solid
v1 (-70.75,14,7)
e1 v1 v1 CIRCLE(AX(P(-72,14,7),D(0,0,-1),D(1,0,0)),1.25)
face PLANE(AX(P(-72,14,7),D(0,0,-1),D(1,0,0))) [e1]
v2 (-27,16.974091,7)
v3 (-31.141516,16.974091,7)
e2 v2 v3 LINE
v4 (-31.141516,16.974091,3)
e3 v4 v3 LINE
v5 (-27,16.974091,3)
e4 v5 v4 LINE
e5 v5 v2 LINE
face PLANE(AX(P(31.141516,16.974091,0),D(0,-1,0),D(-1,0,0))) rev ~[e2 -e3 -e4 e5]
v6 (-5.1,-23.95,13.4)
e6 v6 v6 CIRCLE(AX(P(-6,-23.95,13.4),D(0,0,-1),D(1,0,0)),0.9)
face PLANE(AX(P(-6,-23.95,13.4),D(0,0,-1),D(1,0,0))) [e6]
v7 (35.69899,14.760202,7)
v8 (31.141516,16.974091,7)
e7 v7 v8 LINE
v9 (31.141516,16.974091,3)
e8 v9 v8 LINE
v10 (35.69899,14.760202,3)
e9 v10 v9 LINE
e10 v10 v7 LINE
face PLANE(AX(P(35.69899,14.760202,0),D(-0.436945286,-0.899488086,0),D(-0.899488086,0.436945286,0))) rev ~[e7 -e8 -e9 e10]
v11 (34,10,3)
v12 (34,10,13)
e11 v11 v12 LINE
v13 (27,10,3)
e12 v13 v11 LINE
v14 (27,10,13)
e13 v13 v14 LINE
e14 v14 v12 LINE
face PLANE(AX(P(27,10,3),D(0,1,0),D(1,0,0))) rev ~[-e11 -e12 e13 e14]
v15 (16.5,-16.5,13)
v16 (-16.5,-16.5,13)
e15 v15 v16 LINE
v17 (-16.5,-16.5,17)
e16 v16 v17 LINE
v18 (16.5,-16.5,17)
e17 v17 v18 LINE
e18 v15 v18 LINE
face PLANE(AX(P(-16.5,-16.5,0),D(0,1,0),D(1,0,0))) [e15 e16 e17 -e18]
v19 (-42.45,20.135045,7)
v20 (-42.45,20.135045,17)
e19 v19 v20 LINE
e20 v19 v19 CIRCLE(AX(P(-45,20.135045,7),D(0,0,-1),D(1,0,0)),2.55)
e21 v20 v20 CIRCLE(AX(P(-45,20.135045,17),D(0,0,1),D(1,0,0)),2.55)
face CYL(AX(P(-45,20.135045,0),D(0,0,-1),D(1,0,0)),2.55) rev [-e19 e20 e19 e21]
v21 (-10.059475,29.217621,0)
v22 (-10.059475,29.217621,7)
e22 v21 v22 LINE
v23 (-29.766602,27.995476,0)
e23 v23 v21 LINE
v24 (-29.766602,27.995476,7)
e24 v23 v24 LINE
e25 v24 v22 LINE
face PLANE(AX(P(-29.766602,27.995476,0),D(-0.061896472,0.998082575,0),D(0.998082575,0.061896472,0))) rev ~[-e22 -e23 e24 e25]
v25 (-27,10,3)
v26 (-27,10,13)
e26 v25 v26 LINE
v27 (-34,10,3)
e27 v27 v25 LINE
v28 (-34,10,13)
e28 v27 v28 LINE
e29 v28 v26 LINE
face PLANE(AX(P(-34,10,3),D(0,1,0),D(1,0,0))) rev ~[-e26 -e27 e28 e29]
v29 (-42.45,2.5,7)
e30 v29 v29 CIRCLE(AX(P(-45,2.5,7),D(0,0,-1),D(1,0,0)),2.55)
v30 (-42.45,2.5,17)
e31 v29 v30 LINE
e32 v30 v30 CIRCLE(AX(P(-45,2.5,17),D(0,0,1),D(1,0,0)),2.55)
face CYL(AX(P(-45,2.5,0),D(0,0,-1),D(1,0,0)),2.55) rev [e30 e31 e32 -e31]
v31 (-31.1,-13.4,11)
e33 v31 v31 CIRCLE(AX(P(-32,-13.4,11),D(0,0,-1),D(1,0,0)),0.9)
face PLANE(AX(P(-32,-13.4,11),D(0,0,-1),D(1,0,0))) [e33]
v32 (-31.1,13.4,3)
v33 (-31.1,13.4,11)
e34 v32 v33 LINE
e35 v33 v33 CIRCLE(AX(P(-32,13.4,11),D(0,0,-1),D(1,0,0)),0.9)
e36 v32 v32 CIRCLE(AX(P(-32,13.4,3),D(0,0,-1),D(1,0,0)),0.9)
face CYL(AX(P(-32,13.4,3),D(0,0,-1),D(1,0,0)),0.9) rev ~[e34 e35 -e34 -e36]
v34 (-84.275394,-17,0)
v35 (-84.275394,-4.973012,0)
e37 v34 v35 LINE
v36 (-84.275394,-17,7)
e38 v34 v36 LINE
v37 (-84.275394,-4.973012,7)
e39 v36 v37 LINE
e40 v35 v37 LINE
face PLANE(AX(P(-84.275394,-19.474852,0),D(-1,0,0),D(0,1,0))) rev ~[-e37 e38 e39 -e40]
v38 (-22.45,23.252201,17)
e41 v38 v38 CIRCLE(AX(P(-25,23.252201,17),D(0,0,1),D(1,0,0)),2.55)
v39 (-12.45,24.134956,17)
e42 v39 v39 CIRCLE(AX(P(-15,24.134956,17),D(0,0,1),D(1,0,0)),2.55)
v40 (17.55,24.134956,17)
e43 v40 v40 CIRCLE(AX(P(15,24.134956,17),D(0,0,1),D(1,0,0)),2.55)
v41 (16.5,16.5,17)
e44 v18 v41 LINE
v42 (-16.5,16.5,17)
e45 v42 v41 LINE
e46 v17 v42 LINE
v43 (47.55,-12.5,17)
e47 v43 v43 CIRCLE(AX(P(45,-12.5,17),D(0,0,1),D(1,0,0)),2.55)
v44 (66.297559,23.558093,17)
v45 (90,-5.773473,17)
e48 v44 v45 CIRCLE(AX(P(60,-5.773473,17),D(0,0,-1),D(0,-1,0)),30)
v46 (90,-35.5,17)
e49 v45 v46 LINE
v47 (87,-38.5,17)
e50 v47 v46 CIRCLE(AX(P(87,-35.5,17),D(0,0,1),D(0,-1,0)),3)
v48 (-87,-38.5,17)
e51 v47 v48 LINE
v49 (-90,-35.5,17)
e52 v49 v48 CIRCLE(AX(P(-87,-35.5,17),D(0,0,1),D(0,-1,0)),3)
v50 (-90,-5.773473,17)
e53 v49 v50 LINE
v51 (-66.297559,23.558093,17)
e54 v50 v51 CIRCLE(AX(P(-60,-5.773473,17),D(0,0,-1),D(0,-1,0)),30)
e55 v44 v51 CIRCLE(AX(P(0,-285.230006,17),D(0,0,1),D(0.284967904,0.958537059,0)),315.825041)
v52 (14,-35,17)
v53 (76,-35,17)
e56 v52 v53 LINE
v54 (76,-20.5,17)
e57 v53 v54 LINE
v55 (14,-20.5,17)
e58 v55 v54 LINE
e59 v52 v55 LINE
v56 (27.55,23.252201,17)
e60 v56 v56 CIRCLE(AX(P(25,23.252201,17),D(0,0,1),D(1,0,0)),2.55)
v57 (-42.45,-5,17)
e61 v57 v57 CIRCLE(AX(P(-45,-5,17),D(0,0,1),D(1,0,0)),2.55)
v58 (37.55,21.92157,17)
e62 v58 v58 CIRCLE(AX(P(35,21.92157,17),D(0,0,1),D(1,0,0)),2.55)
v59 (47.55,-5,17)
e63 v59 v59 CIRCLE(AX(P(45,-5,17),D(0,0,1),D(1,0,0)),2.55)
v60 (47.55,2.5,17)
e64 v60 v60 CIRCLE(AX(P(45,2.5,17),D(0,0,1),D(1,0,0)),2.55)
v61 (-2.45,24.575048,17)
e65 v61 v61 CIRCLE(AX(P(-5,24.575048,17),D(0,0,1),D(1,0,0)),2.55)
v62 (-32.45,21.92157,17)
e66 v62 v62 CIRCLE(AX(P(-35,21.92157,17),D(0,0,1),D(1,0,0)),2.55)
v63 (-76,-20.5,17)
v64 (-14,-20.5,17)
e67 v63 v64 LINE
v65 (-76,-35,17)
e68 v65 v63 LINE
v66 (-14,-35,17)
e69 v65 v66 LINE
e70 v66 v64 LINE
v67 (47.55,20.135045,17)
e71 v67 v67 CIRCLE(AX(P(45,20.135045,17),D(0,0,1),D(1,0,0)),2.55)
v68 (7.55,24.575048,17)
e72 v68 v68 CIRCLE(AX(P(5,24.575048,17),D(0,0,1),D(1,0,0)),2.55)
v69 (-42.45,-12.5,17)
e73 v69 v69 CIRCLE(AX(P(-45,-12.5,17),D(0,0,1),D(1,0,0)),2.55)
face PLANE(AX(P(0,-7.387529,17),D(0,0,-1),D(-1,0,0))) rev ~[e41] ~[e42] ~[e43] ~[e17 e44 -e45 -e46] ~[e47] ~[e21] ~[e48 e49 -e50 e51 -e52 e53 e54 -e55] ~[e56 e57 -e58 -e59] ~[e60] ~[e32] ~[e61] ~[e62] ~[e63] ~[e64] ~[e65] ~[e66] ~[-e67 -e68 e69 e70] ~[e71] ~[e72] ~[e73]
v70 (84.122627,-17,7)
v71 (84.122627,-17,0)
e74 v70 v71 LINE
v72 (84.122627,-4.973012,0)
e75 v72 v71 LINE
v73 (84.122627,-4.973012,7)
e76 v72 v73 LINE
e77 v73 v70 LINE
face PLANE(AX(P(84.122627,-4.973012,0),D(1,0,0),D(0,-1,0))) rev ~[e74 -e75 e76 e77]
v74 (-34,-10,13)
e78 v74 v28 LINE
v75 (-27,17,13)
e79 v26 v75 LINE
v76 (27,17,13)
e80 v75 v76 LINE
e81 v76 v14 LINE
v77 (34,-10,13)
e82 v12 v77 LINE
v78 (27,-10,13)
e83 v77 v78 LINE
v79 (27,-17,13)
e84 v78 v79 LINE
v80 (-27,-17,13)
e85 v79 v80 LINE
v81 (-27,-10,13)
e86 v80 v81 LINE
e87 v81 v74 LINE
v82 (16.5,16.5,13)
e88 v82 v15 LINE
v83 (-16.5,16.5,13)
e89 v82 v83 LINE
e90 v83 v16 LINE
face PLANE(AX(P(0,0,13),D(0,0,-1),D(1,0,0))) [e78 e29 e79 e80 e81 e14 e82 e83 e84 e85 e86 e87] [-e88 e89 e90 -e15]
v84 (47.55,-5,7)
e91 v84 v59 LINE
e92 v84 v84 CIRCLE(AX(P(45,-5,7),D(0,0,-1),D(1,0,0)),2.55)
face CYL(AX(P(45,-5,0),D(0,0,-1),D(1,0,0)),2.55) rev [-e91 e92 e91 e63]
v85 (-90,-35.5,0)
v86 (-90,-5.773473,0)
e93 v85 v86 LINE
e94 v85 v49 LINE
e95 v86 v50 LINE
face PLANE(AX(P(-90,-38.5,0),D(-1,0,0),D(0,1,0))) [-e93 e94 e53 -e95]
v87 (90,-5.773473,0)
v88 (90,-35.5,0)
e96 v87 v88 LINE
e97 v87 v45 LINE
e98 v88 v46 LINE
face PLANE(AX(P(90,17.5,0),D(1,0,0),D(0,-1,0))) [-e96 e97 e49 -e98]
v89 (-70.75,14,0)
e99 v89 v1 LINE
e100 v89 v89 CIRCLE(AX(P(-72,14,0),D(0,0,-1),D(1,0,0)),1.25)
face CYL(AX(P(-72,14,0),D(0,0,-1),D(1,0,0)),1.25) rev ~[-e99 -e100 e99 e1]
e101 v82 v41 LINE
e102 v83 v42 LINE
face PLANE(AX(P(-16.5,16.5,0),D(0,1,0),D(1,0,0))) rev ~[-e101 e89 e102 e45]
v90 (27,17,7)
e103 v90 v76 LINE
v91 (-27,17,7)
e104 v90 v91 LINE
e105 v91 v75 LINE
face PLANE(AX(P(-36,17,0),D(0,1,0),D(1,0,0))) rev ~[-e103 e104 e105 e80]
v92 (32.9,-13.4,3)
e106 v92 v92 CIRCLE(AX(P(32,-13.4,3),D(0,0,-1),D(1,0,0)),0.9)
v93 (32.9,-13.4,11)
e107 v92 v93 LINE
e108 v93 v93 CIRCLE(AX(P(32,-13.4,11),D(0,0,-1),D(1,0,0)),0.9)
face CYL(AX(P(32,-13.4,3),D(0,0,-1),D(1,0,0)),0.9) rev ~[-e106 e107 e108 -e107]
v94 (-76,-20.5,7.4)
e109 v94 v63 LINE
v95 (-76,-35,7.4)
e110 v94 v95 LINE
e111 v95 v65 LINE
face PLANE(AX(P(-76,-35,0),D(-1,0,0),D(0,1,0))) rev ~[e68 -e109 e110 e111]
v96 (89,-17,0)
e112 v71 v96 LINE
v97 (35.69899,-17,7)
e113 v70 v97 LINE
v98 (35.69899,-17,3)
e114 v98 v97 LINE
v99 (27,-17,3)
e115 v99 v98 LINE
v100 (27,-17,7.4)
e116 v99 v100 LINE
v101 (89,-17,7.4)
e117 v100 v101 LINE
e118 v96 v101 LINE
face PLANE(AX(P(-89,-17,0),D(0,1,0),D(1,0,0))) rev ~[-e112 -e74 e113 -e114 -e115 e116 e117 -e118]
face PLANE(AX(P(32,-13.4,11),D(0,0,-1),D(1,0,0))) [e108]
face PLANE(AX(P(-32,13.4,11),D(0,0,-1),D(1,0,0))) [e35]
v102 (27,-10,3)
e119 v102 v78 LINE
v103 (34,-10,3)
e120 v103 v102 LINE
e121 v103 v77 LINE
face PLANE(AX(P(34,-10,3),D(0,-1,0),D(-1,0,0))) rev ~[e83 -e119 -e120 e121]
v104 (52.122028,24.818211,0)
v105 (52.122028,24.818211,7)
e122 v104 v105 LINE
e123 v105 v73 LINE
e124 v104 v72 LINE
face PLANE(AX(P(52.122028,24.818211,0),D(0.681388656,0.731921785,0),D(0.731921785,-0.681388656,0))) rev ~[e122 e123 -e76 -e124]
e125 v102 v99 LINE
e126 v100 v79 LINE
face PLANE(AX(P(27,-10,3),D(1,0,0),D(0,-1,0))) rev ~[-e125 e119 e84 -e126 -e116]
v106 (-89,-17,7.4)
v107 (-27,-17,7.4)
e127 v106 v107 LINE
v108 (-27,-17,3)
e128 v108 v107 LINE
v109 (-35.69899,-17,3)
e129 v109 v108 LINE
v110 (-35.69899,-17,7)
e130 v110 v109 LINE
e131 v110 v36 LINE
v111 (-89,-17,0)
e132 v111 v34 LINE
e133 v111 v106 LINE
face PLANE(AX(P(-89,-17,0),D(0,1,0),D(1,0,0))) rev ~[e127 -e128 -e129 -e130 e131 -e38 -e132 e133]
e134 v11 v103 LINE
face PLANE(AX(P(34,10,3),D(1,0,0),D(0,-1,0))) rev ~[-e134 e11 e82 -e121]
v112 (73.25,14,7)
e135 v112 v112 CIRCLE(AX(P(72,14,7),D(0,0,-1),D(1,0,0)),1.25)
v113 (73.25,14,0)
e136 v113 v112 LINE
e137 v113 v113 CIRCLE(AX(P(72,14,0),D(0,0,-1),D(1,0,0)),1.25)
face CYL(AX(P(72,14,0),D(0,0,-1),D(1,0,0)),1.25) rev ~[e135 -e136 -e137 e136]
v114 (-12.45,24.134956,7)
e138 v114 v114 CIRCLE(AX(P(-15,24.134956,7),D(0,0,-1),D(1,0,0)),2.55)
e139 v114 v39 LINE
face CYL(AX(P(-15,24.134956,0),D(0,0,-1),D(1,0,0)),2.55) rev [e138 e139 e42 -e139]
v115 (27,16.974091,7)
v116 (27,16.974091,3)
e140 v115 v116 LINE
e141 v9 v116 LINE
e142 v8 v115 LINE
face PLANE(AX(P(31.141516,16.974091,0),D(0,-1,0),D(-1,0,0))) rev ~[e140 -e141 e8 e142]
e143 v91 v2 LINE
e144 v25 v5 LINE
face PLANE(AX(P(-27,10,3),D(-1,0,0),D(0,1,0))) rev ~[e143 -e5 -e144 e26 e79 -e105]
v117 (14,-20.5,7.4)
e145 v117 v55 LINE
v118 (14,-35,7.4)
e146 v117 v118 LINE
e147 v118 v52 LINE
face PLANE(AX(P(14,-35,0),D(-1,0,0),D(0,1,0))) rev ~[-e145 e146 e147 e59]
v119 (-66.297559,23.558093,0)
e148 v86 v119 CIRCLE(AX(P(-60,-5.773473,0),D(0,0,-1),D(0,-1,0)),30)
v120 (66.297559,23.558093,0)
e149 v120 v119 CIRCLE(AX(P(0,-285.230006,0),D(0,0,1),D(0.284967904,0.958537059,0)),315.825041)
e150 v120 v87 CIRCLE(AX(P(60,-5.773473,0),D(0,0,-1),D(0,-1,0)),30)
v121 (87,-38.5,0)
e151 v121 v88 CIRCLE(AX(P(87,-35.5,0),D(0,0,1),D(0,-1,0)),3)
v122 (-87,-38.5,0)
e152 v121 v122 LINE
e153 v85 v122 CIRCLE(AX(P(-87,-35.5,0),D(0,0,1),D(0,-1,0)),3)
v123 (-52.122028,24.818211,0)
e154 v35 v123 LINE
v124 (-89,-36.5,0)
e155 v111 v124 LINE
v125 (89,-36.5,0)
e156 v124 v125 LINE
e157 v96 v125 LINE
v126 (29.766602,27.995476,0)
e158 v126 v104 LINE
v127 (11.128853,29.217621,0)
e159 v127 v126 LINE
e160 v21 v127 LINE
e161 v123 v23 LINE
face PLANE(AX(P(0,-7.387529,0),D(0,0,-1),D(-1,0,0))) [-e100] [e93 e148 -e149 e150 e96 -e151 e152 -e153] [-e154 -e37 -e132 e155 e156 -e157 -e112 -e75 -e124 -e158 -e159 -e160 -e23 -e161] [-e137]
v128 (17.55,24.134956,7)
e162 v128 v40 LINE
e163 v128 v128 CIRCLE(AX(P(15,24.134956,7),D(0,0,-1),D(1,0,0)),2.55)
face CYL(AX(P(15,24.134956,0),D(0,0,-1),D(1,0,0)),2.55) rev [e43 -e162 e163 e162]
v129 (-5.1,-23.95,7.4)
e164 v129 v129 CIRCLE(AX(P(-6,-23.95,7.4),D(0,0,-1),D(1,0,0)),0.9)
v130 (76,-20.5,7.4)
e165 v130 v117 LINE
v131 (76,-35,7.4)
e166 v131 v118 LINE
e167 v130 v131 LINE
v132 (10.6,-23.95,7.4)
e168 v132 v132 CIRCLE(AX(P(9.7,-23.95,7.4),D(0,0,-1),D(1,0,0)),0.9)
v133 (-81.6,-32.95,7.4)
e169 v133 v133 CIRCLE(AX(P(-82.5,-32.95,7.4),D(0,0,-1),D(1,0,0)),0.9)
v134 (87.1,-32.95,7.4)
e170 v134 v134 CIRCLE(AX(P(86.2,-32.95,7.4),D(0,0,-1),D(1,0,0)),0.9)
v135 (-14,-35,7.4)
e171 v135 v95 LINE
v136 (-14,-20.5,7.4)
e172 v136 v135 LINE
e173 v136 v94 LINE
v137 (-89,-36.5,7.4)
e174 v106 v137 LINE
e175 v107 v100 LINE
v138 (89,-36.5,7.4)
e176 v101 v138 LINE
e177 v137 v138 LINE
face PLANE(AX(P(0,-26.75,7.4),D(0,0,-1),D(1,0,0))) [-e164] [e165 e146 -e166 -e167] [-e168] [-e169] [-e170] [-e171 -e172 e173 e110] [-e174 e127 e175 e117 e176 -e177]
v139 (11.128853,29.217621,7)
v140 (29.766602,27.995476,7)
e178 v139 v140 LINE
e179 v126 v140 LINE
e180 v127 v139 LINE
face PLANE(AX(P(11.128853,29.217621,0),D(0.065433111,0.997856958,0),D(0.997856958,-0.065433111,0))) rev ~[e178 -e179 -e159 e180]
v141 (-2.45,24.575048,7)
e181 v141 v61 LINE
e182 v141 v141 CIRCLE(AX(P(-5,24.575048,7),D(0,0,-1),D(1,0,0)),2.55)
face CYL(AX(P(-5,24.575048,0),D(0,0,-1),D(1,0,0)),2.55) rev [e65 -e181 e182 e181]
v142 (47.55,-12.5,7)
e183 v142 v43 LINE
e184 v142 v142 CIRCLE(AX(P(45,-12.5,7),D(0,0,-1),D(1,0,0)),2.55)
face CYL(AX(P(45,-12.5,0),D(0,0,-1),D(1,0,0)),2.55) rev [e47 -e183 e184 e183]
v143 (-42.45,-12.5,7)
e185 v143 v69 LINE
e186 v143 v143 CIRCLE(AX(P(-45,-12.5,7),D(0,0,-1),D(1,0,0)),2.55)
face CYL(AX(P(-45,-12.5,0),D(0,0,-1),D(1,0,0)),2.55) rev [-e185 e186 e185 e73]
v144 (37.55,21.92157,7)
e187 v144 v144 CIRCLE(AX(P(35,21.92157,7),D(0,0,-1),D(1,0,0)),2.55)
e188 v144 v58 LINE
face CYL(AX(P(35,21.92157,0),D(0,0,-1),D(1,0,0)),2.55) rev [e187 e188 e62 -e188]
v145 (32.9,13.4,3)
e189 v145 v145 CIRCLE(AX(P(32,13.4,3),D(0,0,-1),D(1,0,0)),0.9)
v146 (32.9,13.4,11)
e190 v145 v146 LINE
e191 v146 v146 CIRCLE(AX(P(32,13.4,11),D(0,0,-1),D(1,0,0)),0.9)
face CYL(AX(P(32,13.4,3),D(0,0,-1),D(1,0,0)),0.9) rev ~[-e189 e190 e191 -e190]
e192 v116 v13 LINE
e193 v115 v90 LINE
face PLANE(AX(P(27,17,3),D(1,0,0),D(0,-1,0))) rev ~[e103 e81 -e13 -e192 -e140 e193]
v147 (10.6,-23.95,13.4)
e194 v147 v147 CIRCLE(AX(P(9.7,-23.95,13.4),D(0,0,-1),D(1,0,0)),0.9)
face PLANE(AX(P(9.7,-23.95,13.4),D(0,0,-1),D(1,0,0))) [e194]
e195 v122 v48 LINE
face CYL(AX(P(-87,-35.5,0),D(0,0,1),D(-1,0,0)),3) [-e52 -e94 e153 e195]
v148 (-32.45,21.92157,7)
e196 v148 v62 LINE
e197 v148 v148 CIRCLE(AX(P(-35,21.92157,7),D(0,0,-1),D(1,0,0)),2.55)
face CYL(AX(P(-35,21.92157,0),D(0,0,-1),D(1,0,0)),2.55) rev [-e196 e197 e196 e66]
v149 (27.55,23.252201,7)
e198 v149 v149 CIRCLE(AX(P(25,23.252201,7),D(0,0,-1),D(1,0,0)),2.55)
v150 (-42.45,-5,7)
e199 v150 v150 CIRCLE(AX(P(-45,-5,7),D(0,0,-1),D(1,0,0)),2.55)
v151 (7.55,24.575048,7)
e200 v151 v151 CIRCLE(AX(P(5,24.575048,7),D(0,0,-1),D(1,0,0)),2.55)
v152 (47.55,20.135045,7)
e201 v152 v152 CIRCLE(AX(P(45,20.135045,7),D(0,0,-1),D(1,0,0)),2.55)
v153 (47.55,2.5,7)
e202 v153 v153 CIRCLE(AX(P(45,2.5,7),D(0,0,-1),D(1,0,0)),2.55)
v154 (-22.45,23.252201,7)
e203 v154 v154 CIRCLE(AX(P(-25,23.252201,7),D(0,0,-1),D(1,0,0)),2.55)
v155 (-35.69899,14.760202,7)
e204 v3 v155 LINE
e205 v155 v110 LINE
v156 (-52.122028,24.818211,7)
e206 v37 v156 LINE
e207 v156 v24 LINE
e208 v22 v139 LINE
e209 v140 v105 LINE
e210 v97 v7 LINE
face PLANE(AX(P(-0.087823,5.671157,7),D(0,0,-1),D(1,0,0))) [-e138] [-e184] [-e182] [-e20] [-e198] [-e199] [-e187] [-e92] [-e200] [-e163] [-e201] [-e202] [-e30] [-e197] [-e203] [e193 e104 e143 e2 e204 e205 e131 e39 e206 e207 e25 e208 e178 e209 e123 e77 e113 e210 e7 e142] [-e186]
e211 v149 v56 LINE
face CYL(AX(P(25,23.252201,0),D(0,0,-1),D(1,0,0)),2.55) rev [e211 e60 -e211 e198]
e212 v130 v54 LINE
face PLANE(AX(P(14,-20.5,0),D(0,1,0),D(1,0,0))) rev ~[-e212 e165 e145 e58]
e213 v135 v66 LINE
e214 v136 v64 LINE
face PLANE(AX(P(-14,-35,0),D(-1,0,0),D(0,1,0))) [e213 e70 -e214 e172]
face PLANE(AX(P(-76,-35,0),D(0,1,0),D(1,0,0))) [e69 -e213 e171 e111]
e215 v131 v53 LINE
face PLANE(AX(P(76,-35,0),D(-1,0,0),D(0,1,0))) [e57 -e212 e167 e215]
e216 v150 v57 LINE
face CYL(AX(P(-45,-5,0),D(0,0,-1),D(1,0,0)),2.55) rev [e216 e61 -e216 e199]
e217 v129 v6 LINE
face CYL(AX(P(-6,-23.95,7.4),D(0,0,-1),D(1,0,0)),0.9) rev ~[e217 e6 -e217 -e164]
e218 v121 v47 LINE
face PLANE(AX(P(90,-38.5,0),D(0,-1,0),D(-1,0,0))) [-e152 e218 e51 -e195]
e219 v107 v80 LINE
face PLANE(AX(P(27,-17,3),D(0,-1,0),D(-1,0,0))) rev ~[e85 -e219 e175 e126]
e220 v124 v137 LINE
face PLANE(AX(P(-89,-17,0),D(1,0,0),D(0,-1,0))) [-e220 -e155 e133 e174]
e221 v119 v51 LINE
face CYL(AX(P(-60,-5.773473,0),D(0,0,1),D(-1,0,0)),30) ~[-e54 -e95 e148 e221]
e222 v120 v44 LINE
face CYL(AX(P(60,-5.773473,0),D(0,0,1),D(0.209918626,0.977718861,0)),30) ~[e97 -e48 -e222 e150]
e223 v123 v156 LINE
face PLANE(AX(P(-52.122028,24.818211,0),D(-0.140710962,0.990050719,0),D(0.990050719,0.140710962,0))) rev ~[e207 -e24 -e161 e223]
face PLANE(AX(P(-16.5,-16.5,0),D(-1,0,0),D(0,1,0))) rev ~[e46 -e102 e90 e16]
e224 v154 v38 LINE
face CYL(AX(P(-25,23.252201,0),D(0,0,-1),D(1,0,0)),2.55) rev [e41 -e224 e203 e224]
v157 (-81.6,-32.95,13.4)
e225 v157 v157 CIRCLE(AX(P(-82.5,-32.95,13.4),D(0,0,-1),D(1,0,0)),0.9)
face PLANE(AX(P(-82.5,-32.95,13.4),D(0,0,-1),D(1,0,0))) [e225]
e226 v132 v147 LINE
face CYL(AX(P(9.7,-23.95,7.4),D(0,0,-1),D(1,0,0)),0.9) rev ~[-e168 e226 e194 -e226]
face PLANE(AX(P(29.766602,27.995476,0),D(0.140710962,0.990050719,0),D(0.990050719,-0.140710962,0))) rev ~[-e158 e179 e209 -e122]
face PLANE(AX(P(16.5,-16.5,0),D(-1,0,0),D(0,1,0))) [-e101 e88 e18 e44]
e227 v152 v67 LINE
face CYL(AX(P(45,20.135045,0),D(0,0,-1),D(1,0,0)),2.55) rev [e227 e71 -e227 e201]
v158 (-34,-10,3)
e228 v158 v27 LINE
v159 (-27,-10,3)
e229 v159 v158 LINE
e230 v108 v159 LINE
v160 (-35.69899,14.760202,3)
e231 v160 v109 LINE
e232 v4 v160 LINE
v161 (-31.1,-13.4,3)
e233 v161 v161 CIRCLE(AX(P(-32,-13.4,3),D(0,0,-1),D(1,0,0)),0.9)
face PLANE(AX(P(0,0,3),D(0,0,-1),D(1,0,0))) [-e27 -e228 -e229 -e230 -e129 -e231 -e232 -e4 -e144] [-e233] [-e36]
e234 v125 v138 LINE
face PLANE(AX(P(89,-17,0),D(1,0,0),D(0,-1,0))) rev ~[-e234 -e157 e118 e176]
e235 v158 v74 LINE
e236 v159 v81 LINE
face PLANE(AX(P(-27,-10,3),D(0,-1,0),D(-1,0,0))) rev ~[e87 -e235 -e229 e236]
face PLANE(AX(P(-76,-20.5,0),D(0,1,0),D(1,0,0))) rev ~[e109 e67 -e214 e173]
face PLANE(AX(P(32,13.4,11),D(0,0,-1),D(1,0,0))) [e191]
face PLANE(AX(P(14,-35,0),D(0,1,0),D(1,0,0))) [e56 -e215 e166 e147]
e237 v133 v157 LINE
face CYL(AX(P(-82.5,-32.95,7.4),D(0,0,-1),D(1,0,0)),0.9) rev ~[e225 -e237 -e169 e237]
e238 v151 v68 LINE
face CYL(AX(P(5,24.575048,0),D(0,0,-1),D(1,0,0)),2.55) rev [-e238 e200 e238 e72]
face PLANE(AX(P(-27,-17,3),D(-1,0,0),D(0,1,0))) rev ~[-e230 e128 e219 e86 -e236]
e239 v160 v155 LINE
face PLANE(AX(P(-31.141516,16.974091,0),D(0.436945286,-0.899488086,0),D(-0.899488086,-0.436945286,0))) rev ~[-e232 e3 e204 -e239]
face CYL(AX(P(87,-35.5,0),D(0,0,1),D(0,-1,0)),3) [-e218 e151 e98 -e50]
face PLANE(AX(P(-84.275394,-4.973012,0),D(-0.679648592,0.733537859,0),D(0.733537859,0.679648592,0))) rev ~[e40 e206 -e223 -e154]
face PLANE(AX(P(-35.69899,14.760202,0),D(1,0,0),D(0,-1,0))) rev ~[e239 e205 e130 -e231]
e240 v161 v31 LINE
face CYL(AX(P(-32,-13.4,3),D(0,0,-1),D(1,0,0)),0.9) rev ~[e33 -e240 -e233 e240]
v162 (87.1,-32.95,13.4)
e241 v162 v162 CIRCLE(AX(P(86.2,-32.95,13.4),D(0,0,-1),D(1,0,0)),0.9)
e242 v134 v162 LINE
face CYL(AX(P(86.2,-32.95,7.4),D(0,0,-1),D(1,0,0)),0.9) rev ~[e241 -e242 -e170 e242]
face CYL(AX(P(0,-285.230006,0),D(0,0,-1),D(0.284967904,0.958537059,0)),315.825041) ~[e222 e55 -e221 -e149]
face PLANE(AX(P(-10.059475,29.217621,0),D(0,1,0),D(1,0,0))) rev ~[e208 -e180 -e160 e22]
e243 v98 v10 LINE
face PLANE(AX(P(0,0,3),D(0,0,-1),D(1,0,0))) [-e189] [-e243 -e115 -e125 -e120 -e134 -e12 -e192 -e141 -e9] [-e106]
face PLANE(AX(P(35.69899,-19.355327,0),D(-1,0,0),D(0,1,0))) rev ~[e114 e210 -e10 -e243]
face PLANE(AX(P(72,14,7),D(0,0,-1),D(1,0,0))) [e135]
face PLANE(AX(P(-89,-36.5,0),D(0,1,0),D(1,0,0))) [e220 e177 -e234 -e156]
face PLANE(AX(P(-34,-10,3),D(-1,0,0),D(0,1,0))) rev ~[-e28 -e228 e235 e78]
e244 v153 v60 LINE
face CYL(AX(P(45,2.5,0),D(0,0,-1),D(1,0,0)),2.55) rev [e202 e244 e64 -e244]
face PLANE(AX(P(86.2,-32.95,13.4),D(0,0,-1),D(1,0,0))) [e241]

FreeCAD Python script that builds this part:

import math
import FreeCAD as App
import Part
import Sketcher
Q = App.Units.Quantity


def edges_at(feature, points):
    """Names of the edges that pass closest to the given points."""
    edges = feature.Shape.Edges
    near = lambda p: min(range(len(edges)), key=lambda i: edges[i].distToShape(Part.Vertex(*p))[0])
    return sorted({f"Edge{near(p) + 1}" for p in points})

doc = App.newDocument("Part")
body = doc.addObject("PartDesign::Body", "Body")

# Sketch on XY plane
sketch1 = body.newObject("Sketcher::SketchObject", "Sketch")
sketch1.AttachmentSupport = (doc.getObject("XY_Plane"), [""])
sketch1.MapMode = "FlatFace"
sketch1.addGeometry([
    Part.LineSegment(App.Vector(-90, 17.5, 0), App.Vector(-90, -38.5, 0)),  # 0
    Part.LineSegment(App.Vector(-90, -38.5, 0), App.Vector(90, -38.5, 0)),  # 1
    Part.LineSegment(App.Vector(90, -38.5, 0), App.Vector(90, 17.5, 0)),  # 2
    Part.ArcOfCircle(Part.Circle(App.Vector(0, -285.2, 0), App.Vector(0, 0, 1), 315.8), math.radians(73), math.radians(107)),  # 3
    Part.LineSegment(App.Vector(14, -35, 0), App.Vector(14, -20.5, 0)),  # 4
    Part.LineSegment(App.Vector(14, -20.5, 0), App.Vector(76, -20.5, 0)),  # 5
    Part.LineSegment(App.Vector(76, -20.5, 0), App.Vector(76, -35, 0)),  # 6
    Part.LineSegment(App.Vector(76, -35, 0), App.Vector(14, -35, 0)),  # 7
    Part.Circle(App.Vector(45, -12.5, 0), App.Vector(0, 0, 1), 2.5),  # 8
    Part.Circle(App.Vector(45, -5, 0), App.Vector(0, 0, 1), 2.5),  # 9
    Part.LineSegment(App.Vector(-76, -35, 0), App.Vector(-76, -20.5, 0)),  # 10
    Part.LineSegment(App.Vector(-76, -20.5, 0), App.Vector(-14, -20.5, 0)),  # 11
    Part.LineSegment(App.Vector(-14, -20.5, 0), App.Vector(-14, -35, 0)),  # 12
    Part.LineSegment(App.Vector(-14, -35, 0), App.Vector(-76, -35, 0)),  # 13
    Part.Circle(App.Vector(-45, -12.5, 0), App.Vector(0, 0, 1), 2.5),  # 14
    Part.Circle(App.Vector(-45, -5, 0), App.Vector(0, 0, 1), 2.5),  # 15
    Part.Circle(App.Vector(45, 2.5, 0), App.Vector(0, 0, 1), 2.5),  # 16
    Part.Circle(App.Vector(45, 20.1, 0), App.Vector(0, 0, 1), 2.5),  # 17
    Part.Circle(App.Vector(35, 21.9, 0), App.Vector(0, 0, 1), 2.5),  # 18
    Part.Circle(App.Vector(25, 23.3, 0), App.Vector(0, 0, 1), 2.5),  # 19
    Part.Circle(App.Vector(15, 24.1, 0), App.Vector(0, 0, 1), 2.5),  # 20
    Part.Circle(App.Vector(5, 24.6, 0), App.Vector(0, 0, 1), 2.5),  # 21
    Part.LineSegment(App.Vector(-16.5, -16.5, 0), App.Vector(-16.5, 16.5, 0)),  # 22
    Part.LineSegment(App.Vector(-16.5, 16.5, 0), App.Vector(16.5, 16.5, 0)),  # 23
    Part.LineSegment(App.Vector(16.5, 16.5, 0), App.Vector(16.5, -16.5, 0)),  # 24
    Part.LineSegment(App.Vector(16.5, -16.5, 0), App.Vector(-16.5, -16.5, 0)),  # 25
    Part.Circle(App.Vector(-45, 2.5, 0), App.Vector(0, 0, 1), 2.5),  # 26
    Part.Circle(App.Vector(-5, 24.6, 0), App.Vector(0, 0, 1), 2.5),  # 27
    Part.Circle(App.Vector(-15, 24.1, 0), App.Vector(0, 0, 1), 2.5),  # 28
    Part.Circle(App.Vector(-35, 21.9, 0), App.Vector(0, 0, 1), 2.5),  # 29
    Part.Circle(App.Vector(-25, 23.3, 0), App.Vector(0, 0, 1), 2.5),  # 30
    Part.Circle(App.Vector(-45, 20.1, 0), App.Vector(0, 0, 1), 2.5),  # 31
], False)
sketch1.addConstraint([
    Sketcher.Constraint("Coincident", 0, 2, 1, 1),
    Sketcher.Constraint("Coincident", 1, 2, 2, 1),
    Sketcher.Constraint("Coincident", 2, 2, 3, 1),
    Sketcher.Constraint("Coincident", 3, 2, 0, 1),
    Sketcher.Constraint("Coincident", 4, 2, 5, 1),
    Sketcher.Constraint("Coincident", 5, 2, 6, 1),
    Sketcher.Constraint("Coincident", 6, 2, 7, 1),
    Sketcher.Constraint("Coincident", 7, 2, 4, 1),
    Sketcher.Constraint("Coincident", 10, 2, 11, 1),
    Sketcher.Constraint("Coincident", 11, 2, 12, 1),
    Sketcher.Constraint("Coincident", 12, 2, 13, 1),
    Sketcher.Constraint("Coincident", 13, 2, 10, 1),
    Sketcher.Constraint("Coincident", 22, 2, 23, 1),
    Sketcher.Constraint("Coincident", 23, 2, 24, 1),
    Sketcher.Constraint("Coincident", 24, 2, 25, 1),
    Sketcher.Constraint("Coincident", 25, 2, 22, 1),
    Sketcher.Constraint("Vertical", 0),
    Sketcher.Constraint("Horizontal", 1),
    Sketcher.Constraint("Vertical", 2),
    Sketcher.Constraint("Vertical", 4),
    Sketcher.Constraint("Horizontal", 5),
    Sketcher.Constraint("Vertical", 6),
    Sketcher.Constraint("Horizontal", 7),
    Sketcher.Constraint("Vertical", 10),
    Sketcher.Constraint("Horizontal", 11),
    Sketcher.Constraint("Vertical", 12),
    Sketcher.Constraint("Horizontal", 13),
    Sketcher.Constraint("Vertical", 22),
    Sketcher.Constraint("Horizontal", 23),
    Sketcher.Constraint("Vertical", 24),
    Sketcher.Constraint("Horizontal", 25),
    Sketcher.Constraint("Equal", 8, 9),
    Sketcher.Constraint("Equal", 9, 14),
    Sketcher.Constraint("Equal", 14, 15),
    Sketcher.Constraint("Equal", 15, 16),
    Sketcher.Constraint("Equal", 16, 17),
    Sketcher.Constraint("Equal", 17, 18),
    Sketcher.Constraint("Equal", 18, 19),
    Sketcher.Constraint("Equal", 19, 20),
    Sketcher.Constraint("Equal", 20, 21),
    Sketcher.Constraint("Equal", 21, 26),
    Sketcher.Constraint("Equal", 26, 27),
    Sketcher.Constraint("Equal", 27, 28),
    Sketcher.Constraint("Equal", 28, 29),
    Sketcher.Constraint("Equal", 29, 30),
    Sketcher.Constraint("Equal", 30, 31),
    Sketcher.Constraint("Symmetric", 22, 2, 24, 2, -1, 1),
    Sketcher.Constraint("Symmetric", 8, 3, 14, 3, -2),
    Sketcher.Constraint("Symmetric", 9, 3, 15, 3, -2),
    Sketcher.Constraint("Symmetric", 16, 3, 26, 3, -2),
    Sketcher.Constraint("Symmetric", 21, 3, 27, 3, -2),
    Sketcher.Constraint("Symmetric", 20, 3, 28, 3, -2),
    Sketcher.Constraint("Symmetric", 18, 3, 29, 3, -2),
    Sketcher.Constraint("Symmetric", 19, 3, 30, 3, -2),
    Sketcher.Constraint("Symmetric", 17, 3, 31, 3, -2),
    Sketcher.Constraint("Symmetric", 2, 2, 3, 2, -2),
    Sketcher.Constraint("Symmetric", 5, 2, 10, 2, -2),
    Sketcher.Constraint("Symmetric", 7, 2, 12, 2, -2),
    Sketcher.Constraint("Vertical", 8, 3, 9, 3),
    Sketcher.Constraint("Vertical", 9, 3, 16, 3),
    Sketcher.Constraint("Vertical", 16, 3, 17, 3),
    Sketcher.Constraint("Equal", 25, 22),
    Sketcher.Constraint("Diameter", 8, Q("5.1 mm")),
    Sketcher.Constraint("DistanceX", 1, 1, 1, 2, Q("180 mm")),
    Sketcher.Constraint("DistanceX", 5, 1, 5, 2, Q("62 mm")),
    Sketcher.Constraint("DistanceX", 23, 1, 23, 2, Q("33 mm")),
    Sketcher.Constraint("DistanceY", 0, 2, 0, 1, Q("56 mm")),
    Sketcher.Constraint("DistanceY", 4, 1, 4, 2, Q("14.5 mm")),
    Sketcher.Constraint("DistanceX", -1, 1, 8, 3, Q("45 mm")),
    Sketcher.Constraint("DistanceY", 9, 3, -1, 1, Q("5 mm")),
    Sketcher.Constraint("DistanceX", -1, 1, 18, 3, Q("35 mm")),
    Sketcher.Constraint("DistanceX", -1, 1, 19, 3, Q("25 mm")),
    Sketcher.Constraint("DistanceX", -1, 1, 20, 3, Q("15 mm")),
    Sketcher.Constraint("DistanceX", -1, 1, 21, 3, Q("5 mm")),
    Sketcher.Constraint("DistanceX", -1, 1, 4, 2, Q("14 mm")),
    Sketcher.Constraint("DistanceY", 6, 2, -1, 1, Q("35 mm")),
    Sketcher.Constraint("DistanceY", 8, 3, 16, 3, Q("15 mm")),
    Sketcher.Constraint("DistanceY", 0, 2, 14, 3, Q("26 mm")),
    Sketcher.Constraint("DistanceY", 4, 2, 8, 3, Q("8 mm")),
    Sketcher.Constraint("Radius", 3, Q("315.825041 mm")),
    Sketcher.Constraint("DistanceY", -1, 1, 19, 3, Q("23.252201 mm")),
    Sketcher.Constraint("DistanceY", -1, 1, 18, 3, Q("21.92157 mm")),
    Sketcher.Constraint("DistanceY", 17, 3, 20, 3, Q("3.999911 mm")),
    Sketcher.Constraint("DistanceY", 20, 3, 21, 3, Q("0.440092 mm")),
    Sketcher.Constraint("DistanceY", -1, 1, 17, 3, Q("20.135045 mm")),
])
pad1 = body.newObject("PartDesign::Pad", "Pad")
pad1.Profile = sketch1
pad1.Length = 17
doc.recompute()

fillet = body.newObject("PartDesign::Fillet", "Fillet")
fillet.Base = (pad1, edges_at(pad1, [(90, 17.5, 8.5), (-90, 17.5, 8.5)]))
fillet.Radius = 30
doc.recompute()

fillet2 = body.newObject("PartDesign::Fillet", "Fillet001")
fillet2.Base = (fillet, edges_at(fillet, [(-90, -38.5, 8.5), (90, -38.5, 8.5)]))
fillet2.Radius = 3

# Sketch on XY plane
sketch2 = body.newObject("Sketcher::SketchObject", "Sketch001")
sketch2.AttachmentSupport = (doc.getObject("XY_Plane"), [""])
sketch2.MapMode = "FlatFace"
sketch2.addGeometry([
    Part.LineSegment(App.Vector(-89, -36, 0), App.Vector(-89, -17, 0)),
    Part.LineSegment(App.Vector(-89, -17, 0), App.Vector(89, -17, 0)),
    Part.LineSegment(App.Vector(89, -17, 0), App.Vector(89, -36, 0)),
    Part.LineSegment(App.Vector(89, -36, 0), App.Vector(-89, -36, 0)),
], False)
sketch2.addConstraint([
    Sketcher.Constraint("Coincident", 0, 2, 1, 1),
    Sketcher.Constraint("Coincident", 1, 2, 2, 1),
    Sketcher.Constraint("Coincident", 2, 2, 3, 1),
    Sketcher.Constraint("Coincident", 3, 2, 0, 1),
    Sketcher.Constraint("Vertical", 0),
    Sketcher.Constraint("Horizontal", 1),
    Sketcher.Constraint("Vertical", 2),
    Sketcher.Constraint("Horizontal", 3),
    Sketcher.Constraint("DistanceX", 1, 1, 1, 2, Q("178 mm")),
    Sketcher.Constraint("DistanceY", 0, 1, 0, 2, Q("19.5 mm")),
    Sketcher.Constraint("DistanceX", 0, 2, -1, 1, Q("89 mm")),
    Sketcher.Constraint("DistanceY", 0, 2, -1, 1, Q("17 mm")),
])
pocket1 = body.newObject("PartDesign::Pocket", "Pocket")
pocket1.Profile = sketch2
pocket1.Length = 7.4
pocket1.Reversed = True

# Sketch on XY plane
sketch3 = body.newObject("Sketcher::SketchObject", "Sketch002")
sketch3.AttachmentSupport = (doc.getObject("XY_Plane"), [""])
sketch3.MapMode = "FlatFace"
sketch3.AttachmentOffset = App.Placement(App.Vector(0, 0, 7.4), App.Rotation())
sketch3.addGeometry([
    Part.Circle(App.Vector(-82.5, -33, 0), App.Vector(0, 0, 1), 0.9),
    Part.Circle(App.Vector(-6, -23.9, 0), App.Vector(0, 0, 1), 0.9),
    Part.Circle(App.Vector(9.7, -23.9, 0), App.Vector(0, 0, 1), 0.9),
    Part.Circle(App.Vector(86.2, -33, 0), App.Vector(0, 0, 1), 0.9),
], False)
sketch3.addConstraint([
    Sketcher.Constraint("Equal", 0, 1),
    Sketcher.Constraint("Equal", 1, 2),
    Sketcher.Constraint("Equal", 2, 3),
    Sketcher.Constraint("Horizontal", 1, 3, 2, 3),
    Sketcher.Constraint("Horizontal", 0, 3, 3, 3),
    Sketcher.Constraint("Diameter", 0, Q("1.8 mm")),
    Sketcher.Constraint("DistanceX", 1, 3, -1, 1, Q("6 mm")),
    Sketcher.Constraint("DistanceY", 0, 3, 1, 3, Q("9 mm")),
    Sketcher.Constraint("DistanceX", 0, 3, -1, 1, Q("82.5 mm")),
    Sketcher.Constraint("DistanceX", -1, 1, 2, 3, Q("9.7 mm")),
    Sketcher.Constraint("DistanceX", -1, 1, 3, 3, Q("86.2 mm")),
    Sketcher.Constraint("DistanceY", 0, 3, -1, 1, Q("32.95 mm")),
])
pocket2 = body.newObject("PartDesign::Pocket", "Pocket001")
pocket2.Profile = sketch3
pocket2.Length = 6
pocket2.Reversed = True

# Sketch on XY plane
sketch4 = body.newObject("Sketcher::SketchObject", "Sketch003")
sketch4.AttachmentSupport = (doc.getObject("XY_Plane"), [""])
sketch4.MapMode = "FlatFace"
sketch4.addGeometry([
    Part.LineSegment(App.Vector(-36, -17, 0), App.Vector(-36, 17, 0)),
    Part.LineSegment(App.Vector(-36, 17, 0), App.Vector(36, 17, 0)),
    Part.LineSegment(App.Vector(36, 17, 0), App.Vector(36, -17, 0)),
    Part.LineSegment(App.Vector(36, -17, 0), App.Vector(-36, -17, 0)),
], False)
sketch4.addConstraint([
    Sketcher.Constraint("Coincident", 0, 2, 1, 1),
    Sketcher.Constraint("Coincident", 1, 2, 2, 1),
    Sketcher.Constraint("Coincident", 2, 2, 3, 1),
    Sketcher.Constraint("Coincident", 3, 2, 0, 1),
    Sketcher.Constraint("Vertical", 0),
    Sketcher.Constraint("Horizontal", 1),
    Sketcher.Constraint("Vertical", 2),
    Sketcher.Constraint("Horizontal", 3),
    Sketcher.Constraint("Symmetric", 0, 2, 2, 2, -1, 1),
    Sketcher.Constraint("DistanceX", 1, 1, 1, 2, Q("72 mm")),
    Sketcher.Constraint("DistanceY", 0, 1, 0, 2, Q("34 mm")),
])
pocket3 = body.newObject("PartDesign::Pocket", "Pocket002")
pocket3.Profile = sketch4
pocket3.Length = 3
pocket3.Reversed = True

# Sketch on XY plane
sketch5 = body.newObject("Sketcher::SketchObject", "Sketch004")
sketch5.AttachmentSupport = (doc.getObject("XY_Plane"), [""])
sketch5.MapMode = "FlatFace"
sketch5.AttachmentOffset = App.Placement(App.Vector(0, 0, 3), App.Rotation())
sketch5.addGeometry([
    Part.LineSegment(App.Vector(-27, -17, 0), App.Vector(-27, -10, 0)),  # 0
    Part.LineSegment(App.Vector(-27, -10, 0), App.Vector(-34, -10, 0)),  # 1
    Part.LineSegment(App.Vector(-34, -10, 0), App.Vector(-34, 10, 0)),  # 2
    Part.LineSegment(App.Vector(-34, 10, 0), App.Vector(-27, 10, 0)),  # 3
    Part.LineSegment(App.Vector(-27, 10, 0), App.Vector(-27, 17, 0)),  # 4
    Part.LineSegment(App.Vector(-27, 17, 0), App.Vector(27, 17, 0)),  # 5
    Part.LineSegment(App.Vector(27, 17, 0), App.Vector(27, 10, 0)),  # 6
    Part.LineSegment(App.Vector(27, 10, 0), App.Vector(34, 10, 0)),  # 7
    Part.LineSegment(App.Vector(34, 10, 0), App.Vector(34, -10, 0)),  # 8
    Part.LineSegment(App.Vector(34, -10, 0), App.Vector(27, -10, 0)),  # 9
    Part.LineSegment(App.Vector(27, -10, 0), App.Vector(27, -17, 0)),  # 10
    Part.LineSegment(App.Vector(27, -17, 0), App.Vector(-27, -17, 0)),  # 11
], False)
sketch5.addConstraint([
    Sketcher.Constraint("Coincident", 0, 2, 1, 1),
    Sketcher.Constraint("Coincident", 1, 2, 2, 1),
    Sketcher.Constraint("Coincident", 2, 2, 3, 1),
    Sketcher.Constraint("Coincident", 3, 2, 4, 1),
    Sketcher.Constraint("Coincident", 4, 2, 5, 1),
    Sketcher.Constraint("Coincident", 5, 2, 6, 1),
    Sketcher.Constraint("Coincident", 6, 2, 7, 1),
    Sketcher.Constraint("Coincident", 7, 2, 8, 1),
    Sketcher.Constraint("Coincident", 8, 2, 9, 1),
    Sketcher.Constraint("Coincident", 9, 2, 10, 1),
    Sketcher.Constraint("Coincident", 10, 2, 11, 1),
    Sketcher.Constraint("Coincident", 11, 2, 0, 1),
    Sketcher.Constraint("Vertical", 0),
    Sketcher.Constraint("Horizontal", 1),
    Sketcher.Constraint("Vertical", 2),
    Sketcher.Constraint("Horizontal", 3),
    Sketcher.Constraint("Vertical", 4),
    Sketcher.Constraint("Horizontal", 5),
    Sketcher.Constraint("Vertical", 6),
    Sketcher.Constraint("Horizontal", 7),
    Sketcher.Constraint("Vertical", 8),
    Sketcher.Constraint("Horizontal", 9),
    Sketcher.Constraint("Vertical", 10),
    Sketcher.Constraint("Horizontal", 11),
    Sketcher.Constraint("Symmetric", 0, 2, 6, 2, -1, 1),
    Sketcher.Constraint("Symmetric", 2, 2, 8, 2, -1, 1),
    Sketcher.Constraint("Symmetric", 4, 2, 10, 2, -1, 1),
    Sketcher.Constraint("Symmetric", 3, 2, 6, 2, -2),
    Sketcher.Constraint("Equal", 9, 0),
    Sketcher.Constraint("DistanceX", 1, 2, 1, 1, Q("7 mm")),
    Sketcher.Constraint("DistanceX", 5, 1, 5, 2, Q("54 mm")),
    Sketcher.Constraint("DistanceY", 2, 1, 2, 2, Q("20 mm")),
])
pocket4 = body.newObject("PartDesign::Pocket", "Pocket003")
pocket4.Profile = sketch5
pocket4.Length = 10
pocket4.Reversed = True

# Sketch on XY plane
sketch6 = body.newObject("Sketcher::SketchObject", "Sketch005")
sketch6.AttachmentSupport = (doc.getObject("XY_Plane"), [""])
sketch6.MapMode = "FlatFace"
sketch6.addGeometry([
    Part.Circle(App.Vector(-72, 14, 0), App.Vector(0, 0, 1), 1.2),  # 0
    Part.Circle(App.Vector(72, 14, 0), App.Vector(0, 0, 1), 1.2),  # 1
    Part.LineSegment(App.Vector(-84.3, -19.5, 0), App.Vector(-84.3, -5, 0)),  # 2
    Part.LineSegment(App.Vector(-84.3, -5, 0), App.Vector(-52.1, 24.8, 0)),  # 3
    Part.LineSegment(App.Vector(-52.1, 24.8, 0), App.Vector(-29.8, 28, 0)),  # 4
    Part.LineSegment(App.Vector(-29.8, 28, 0), App.Vector(-10.1, 29.2, 0)),  # 5
    Part.LineSegment(App.Vector(-10.1, 29.2, 0), App.Vector(11.1, 29.2, 0)),  # 6
    Part.LineSegment(App.Vector(11.1, 29.2, 0), App.Vector(29.8, 28, 0)),  # 7
    Part.LineSegment(App.Vector(29.8, 28, 0), App.Vector(52.1, 24.8, 0)),  # 8
    Part.LineSegment(App.Vector(52.1, 24.8, 0), App.Vector(84.1, -5, 0)),  # 9
    Part.LineSegment(App.Vector(84.1, -5, 0), App.Vector(84.1, -19.4, 0)),  # 10
    Part.LineSegment(App.Vector(84.1, -19.4, 0), App.Vector(35.7, -19.4, 0)),  # 11
    Part.LineSegment(App.Vector(35.7, -19.4, 0), App.Vector(35.7, 14.8, 0)),  # 12
    Part.LineSegment(App.Vector(35.7, 14.8, 0), App.Vector(31.1, 17, 0)),  # 13
    Part.LineSegment(App.Vector(31.1, 17, 0), App.Vector(-31.1, 17, 0)),  # 14
    Part.LineSegment(App.Vector(-31.1, 17, 0), App.Vector(-35.7, 14.8, 0)),  # 15
    Part.LineSegment(App.Vector(-35.7, 14.8, 0), App.Vector(-35.7, -19.5, 0)),  # 16
    Part.LineSegment(App.Vector(-35.7, -19.5, 0), App.Vector(-84.3, -19.5, 0)),  # 17
], False)
sketch6.addConstraint([
    Sketcher.Constraint("Coincident", 2, 2, 3, 1),
    Sketcher.Constraint("Coincident", 3, 2, 4, 1),
    Sketcher.Constraint("Coincident", 4, 2, 5, 1),
    Sketcher.Constraint("Coincident", 5, 2, 6, 1),
    Sketcher.Constraint("Coincident", 6, 2, 7, 1),
    Sketcher.Constraint("Coincident", 7, 2, 8, 1),
    Sketcher.Constraint("Coincident", 8, 2, 9, 1),
    Sketcher.Constraint("Coincident", 9, 2, 10, 1),
    Sketcher.Constraint("Coincident", 10, 2, 11, 1),
    Sketcher.Constraint("Coincident", 11, 2, 12, 1),
    Sketcher.Constraint("Coincident", 12, 2, 13, 1),
    Sketcher.Constraint("Coincident", 13, 2, 14, 1),
    Sketcher.Constraint("Coincident", 14, 2, 15, 1),
    Sketcher.Constraint("Coincident", 15, 2, 16, 1),
    Sketcher.Constraint("Coincident", 16, 2, 17, 1),
    Sketcher.Constraint("Coincident", 17, 2, 2, 1),
    Sketcher.Constraint("Vertical", 2),
    Sketcher.Constraint("Horizontal", 6),
    Sketcher.Constraint("Vertical", 10),
    Sketcher.Constraint("Horizontal", 11),
    Sketcher.Constraint("Vertical", 12),
    Sketcher.Constraint("Horizontal", 14),
    Sketcher.Constraint("Vertical", 16),
    Sketcher.Constraint("Horizontal", 17),
    Sketcher.Constraint("Equal", 0, 1),
    Sketcher.Constraint("Symmetric", 0, 3, 1, 3, -2),
    Sketcher.Constraint("Symmetric", 4, 2, 7, 2, -2),
    Sketcher.Constraint("Symmetric", 3, 2, 8, 2, -2),
    Sketcher.Constraint("Symmetric", 12, 2, 15, 2, -2),
    Sketcher.Constraint("Horizontal", 2, 2, 9, 2),
    Sketcher.Constraint("Equal", 13, 15),
    Sketcher.Constraint("Diameter", 0, Q("2.5 mm")),
    Sketcher.Constraint("DistanceX", 0, 3, -1, 1, Q("72 mm")),
    Sketcher.Constraint("DistanceY", -1, 1, 0, 3, Q("14 mm")),
    Sketcher.Constraint("DistanceY", 2, 1, 2, 2, Q("14.50184 mm")),
    Sketcher.Constraint("DistanceY", 12, 1, 12, 2, Q("34.115529 mm")),
    Sketcher.Constraint("DistanceX", 4, 2, -1, 1, Q("29.766602 mm")),
    Sketcher.Constraint("DistanceX", 8, 2, 9, 2, Q("32.000599 mm")),
    Sketcher.Constraint("DistanceX", 5, 2, 9, 2, Q("94.182102 mm")),
    Sketcher.Constraint("DistanceY", 1, 3, 12, 2, Q("0.760202 mm")),
    Sketcher.Constraint("Distance", 4, Q("22.580082 mm")),
    Sketcher.Constraint("Distance", 13, Q("5.066742 mm")),
    Sketcher.Constraint("DistanceX", 6, 1, 6, 2, Q("21.188328 mm")),
    Sketcher.Constraint("DistanceX", 11, 2, 11, 1, Q("48.423637 mm")),
    Sketcher.Constraint("DistanceX", 14, 2, 14, 1, Q("62.283032 mm")),
    Sketcher.Constraint("DistanceX", 17, 2, 17, 1, Q("48.576404 mm")),
    Sketcher.Constraint("DistanceY", 10, 2, 10, 1, Q("14.382315 mm")),
    Sketcher.Constraint("DistanceY", -1, 1, 3, 2, Q("24.818211 mm")),
    Sketcher.Constraint("DistanceY", -1, 1, 5, 2, Q("29.217621 mm")),
    Sketcher.Constraint("DistanceX", -1, 1, 11, 2, Q("35.69899 mm")),
])
pocket5 = body.newObject("PartDesign::Pocket", "Pocket004")
pocket5.Profile = sketch6
pocket5.Length = 7
pocket5.Reversed = True

# Sketch on XY plane
sketch7 = body.newObject("Sketcher::SketchObject", "Sketch006")
sketch7.AttachmentSupport = (doc.getObject("XY_Plane"), [""])
sketch7.MapMode = "FlatFace"
sketch7.AttachmentOffset = App.Placement(App.Vector(0, 0, 3), App.Rotation())
sketch7.addGeometry([
    Part.Circle(App.Vector(-32, -13.4, 0), App.Vector(0, 0, 1), 0.9),
    Part.Circle(App.Vector(-32, 13.4, 0), App.Vector(0, 0, 1), 0.9),
    Part.Circle(App.Vector(32, 13.4, 0), App.Vector(0, 0, 1), 0.9),
    Part.Circle(App.Vector(32, -13.4, 0), App.Vector(0, 0, 1), 0.9),
], False)
sketch7.addConstraint([
    Sketcher.Constraint("Equal", 0, 1),
    Sketcher.Constraint("Equal", 1, 2),
    Sketcher.Constraint("Equal", 2, 3),
    Sketcher.Constraint("Symmetric", 0, 3, 2, 3, -1, 1),
    Sketcher.Constraint("Symmetric", 1, 3, 3, 3, -1, 1),
    Sketcher.Constraint("Symmetric", 1, 3, 2, 3, -2),
    Sketcher.Constraint("Diameter", 0, Q("1.8 mm")),
    Sketcher.Constraint("DistanceX", 0, 3, -1, 1, Q("32 mm")),
    Sketcher.Constraint("DistanceY", 0, 3, -1, 1, Q("13.4 mm")),
])
pocket6 = body.newObject("PartDesign::Pocket", "Pocket005")
pocket6.Profile = sketch7
pocket6.Length = 8
pocket6.Reversed = True

doc.recompute()
